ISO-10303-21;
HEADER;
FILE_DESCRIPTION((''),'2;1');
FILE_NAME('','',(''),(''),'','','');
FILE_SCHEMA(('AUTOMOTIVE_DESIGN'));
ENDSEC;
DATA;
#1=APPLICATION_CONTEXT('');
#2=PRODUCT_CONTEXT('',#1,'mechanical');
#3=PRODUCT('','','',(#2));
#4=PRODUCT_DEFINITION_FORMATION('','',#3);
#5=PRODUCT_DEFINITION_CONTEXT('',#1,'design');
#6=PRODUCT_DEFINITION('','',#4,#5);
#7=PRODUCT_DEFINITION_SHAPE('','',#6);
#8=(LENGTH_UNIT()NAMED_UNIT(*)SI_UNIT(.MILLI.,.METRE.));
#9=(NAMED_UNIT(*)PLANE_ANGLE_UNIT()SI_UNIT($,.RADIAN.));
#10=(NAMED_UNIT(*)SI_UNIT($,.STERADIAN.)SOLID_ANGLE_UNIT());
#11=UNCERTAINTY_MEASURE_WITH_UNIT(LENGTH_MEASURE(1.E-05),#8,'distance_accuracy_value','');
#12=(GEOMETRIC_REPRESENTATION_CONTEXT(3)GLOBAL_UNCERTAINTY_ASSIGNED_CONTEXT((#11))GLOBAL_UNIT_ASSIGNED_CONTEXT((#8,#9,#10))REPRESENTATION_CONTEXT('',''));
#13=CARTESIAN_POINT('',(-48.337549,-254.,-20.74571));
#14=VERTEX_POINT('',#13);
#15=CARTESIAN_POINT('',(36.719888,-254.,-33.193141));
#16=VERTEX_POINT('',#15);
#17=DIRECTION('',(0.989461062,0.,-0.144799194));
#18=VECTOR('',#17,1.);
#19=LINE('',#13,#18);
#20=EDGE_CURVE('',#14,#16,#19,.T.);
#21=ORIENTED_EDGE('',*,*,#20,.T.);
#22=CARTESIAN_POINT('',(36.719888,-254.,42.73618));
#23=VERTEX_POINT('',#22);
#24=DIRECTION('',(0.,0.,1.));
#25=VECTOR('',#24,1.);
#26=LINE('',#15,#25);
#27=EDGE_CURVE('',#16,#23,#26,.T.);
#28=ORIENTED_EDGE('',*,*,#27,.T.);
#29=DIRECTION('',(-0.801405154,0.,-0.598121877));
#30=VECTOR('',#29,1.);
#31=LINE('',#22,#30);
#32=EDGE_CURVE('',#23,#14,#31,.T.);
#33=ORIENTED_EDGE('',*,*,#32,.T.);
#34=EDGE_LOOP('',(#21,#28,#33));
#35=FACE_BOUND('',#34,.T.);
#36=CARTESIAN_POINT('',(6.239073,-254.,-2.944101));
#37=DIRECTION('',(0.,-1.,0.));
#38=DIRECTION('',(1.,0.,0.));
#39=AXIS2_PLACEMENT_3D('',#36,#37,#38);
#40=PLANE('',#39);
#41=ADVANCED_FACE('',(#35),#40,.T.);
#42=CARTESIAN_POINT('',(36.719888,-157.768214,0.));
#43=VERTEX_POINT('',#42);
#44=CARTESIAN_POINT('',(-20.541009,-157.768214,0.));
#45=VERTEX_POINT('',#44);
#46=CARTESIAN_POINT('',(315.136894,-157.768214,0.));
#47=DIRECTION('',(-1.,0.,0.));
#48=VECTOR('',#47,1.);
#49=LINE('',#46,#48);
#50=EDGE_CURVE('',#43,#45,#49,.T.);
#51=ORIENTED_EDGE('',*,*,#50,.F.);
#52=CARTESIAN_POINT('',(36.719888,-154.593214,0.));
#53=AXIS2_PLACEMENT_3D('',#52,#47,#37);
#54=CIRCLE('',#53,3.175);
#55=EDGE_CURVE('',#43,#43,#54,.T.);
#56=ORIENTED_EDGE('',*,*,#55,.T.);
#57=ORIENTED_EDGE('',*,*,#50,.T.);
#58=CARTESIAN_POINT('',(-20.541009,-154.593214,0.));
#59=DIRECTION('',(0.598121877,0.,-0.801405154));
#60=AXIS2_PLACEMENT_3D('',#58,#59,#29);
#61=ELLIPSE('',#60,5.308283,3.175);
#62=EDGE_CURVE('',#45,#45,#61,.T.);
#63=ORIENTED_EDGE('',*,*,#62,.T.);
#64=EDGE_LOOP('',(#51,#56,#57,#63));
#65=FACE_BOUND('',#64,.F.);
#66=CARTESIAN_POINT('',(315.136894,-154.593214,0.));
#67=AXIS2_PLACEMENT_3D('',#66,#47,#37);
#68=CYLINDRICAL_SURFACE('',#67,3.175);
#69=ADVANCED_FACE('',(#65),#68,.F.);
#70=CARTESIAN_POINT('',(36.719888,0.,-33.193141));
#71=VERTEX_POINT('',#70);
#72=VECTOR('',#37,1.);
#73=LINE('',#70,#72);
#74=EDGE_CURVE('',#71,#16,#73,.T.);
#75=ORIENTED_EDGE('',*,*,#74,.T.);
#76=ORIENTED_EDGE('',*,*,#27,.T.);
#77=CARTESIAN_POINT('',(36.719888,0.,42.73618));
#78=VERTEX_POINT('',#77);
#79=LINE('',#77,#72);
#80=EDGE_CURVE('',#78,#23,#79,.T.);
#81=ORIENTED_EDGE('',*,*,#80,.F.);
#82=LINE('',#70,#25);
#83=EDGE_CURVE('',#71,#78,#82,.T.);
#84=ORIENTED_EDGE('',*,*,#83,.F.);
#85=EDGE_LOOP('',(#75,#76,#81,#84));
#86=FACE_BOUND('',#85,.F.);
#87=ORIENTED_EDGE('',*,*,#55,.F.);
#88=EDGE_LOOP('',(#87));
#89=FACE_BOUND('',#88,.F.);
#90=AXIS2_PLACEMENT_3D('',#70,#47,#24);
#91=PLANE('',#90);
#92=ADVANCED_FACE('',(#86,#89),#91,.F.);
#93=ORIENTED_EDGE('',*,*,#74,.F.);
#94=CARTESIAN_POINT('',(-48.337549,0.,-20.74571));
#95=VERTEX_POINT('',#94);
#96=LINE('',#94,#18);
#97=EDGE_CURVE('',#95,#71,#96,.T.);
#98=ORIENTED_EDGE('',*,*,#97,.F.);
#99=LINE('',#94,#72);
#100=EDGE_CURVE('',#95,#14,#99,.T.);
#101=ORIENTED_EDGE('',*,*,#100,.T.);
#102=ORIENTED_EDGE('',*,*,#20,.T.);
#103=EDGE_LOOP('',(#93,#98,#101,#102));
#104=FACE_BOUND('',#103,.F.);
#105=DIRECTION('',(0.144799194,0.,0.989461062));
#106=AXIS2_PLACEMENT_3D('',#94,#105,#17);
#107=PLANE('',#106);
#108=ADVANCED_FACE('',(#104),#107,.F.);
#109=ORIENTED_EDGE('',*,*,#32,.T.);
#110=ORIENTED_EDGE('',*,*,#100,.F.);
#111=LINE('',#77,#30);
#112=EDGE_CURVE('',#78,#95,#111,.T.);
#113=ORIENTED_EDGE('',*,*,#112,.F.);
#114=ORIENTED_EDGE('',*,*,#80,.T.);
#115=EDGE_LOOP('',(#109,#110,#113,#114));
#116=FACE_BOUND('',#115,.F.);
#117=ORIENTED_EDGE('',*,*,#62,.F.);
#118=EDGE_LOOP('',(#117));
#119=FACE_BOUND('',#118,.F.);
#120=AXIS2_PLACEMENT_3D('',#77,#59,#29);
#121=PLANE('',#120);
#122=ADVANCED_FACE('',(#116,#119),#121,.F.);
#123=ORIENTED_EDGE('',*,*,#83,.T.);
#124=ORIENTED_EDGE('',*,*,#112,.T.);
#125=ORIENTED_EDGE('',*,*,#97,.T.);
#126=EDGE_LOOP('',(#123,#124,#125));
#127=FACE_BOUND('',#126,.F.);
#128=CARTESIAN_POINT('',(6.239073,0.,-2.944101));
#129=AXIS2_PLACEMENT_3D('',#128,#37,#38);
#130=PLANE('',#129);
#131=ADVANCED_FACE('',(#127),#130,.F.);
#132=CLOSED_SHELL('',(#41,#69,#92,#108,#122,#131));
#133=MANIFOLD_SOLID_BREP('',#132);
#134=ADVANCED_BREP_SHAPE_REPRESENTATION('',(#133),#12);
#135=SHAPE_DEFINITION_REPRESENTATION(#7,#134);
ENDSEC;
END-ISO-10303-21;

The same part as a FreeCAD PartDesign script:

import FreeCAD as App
import Part
import Sketcher
from FreeCAD import Vector
Q = App.Units.Quantity

doc = App.newDocument("Part")
body = doc.addObject("PartDesign::Body", "Body")

# Sketch on XZ plane
sketch1 = body.newObject("Sketcher::SketchObject", "Sketch")
sketch1.AttachmentSupport = (doc.getObject("XZ_Plane"), [""])
sketch1.MapMode = "FlatFace"
sketch1.addGeometry([
    Part.LineSegment(Vector(37, 43, 0), Vector(-48, -21, 0)),
    Part.LineSegment(Vector(-48, -21, 0), Vector(37, -33, 0)),
    Part.LineSegment(Vector(37, -33, 0), Vector(37, 43, 0)),
], False)
sketch1.addConstraint([
    Sketcher.Constraint("Coincident", 0, 2, 1, 1),
    Sketcher.Constraint("Coincident", 1, 2, 2, 1),
    Sketcher.Constraint("Coincident", 2, 2, 0, 1),
    Sketcher.Constraint("Vertical", 2),
    Sketcher.Constraint("Distance", 1, 85.9634),
    Sketcher.Constraint("DistanceY", 2, 1, 2, 2, 75.929321),
    Sketcher.Constraint("DistanceX", 0, 2, -1, 1, 48.337549),
    Sketcher.Constraint("DistanceY", 0, 2, -1, 1, 20.74571),
    Sketcher.Constraint("DistanceY", 1, 2, -1, 1, 33.193141),
])
pad1 = body.newObject("PartDesign::Pad", "Pad")
pad1.Profile = sketch1
pad1.Length = Q("10 in")

# Sketch on YZ plane
sketch2 = body.newObject("Sketcher::SketchObject", "Sketch001")
sketch2.AttachmentSupport = (doc.getObject("YZ_Plane"), [""])
sketch2.MapMode = "FlatFace"
sketch2.AttachmentOffset = App.Placement(Vector(0, 0, 36.719888), App.Rotation())
sketch2.addGeometry(Part.Circle(Vector(-154.6, 0, 0), Vector(0, 0, 1), 3.2), False)
sketch2.addConstraint([
    Sketcher.Constraint("PointOnObject", 0, 3, -1),
    Sketcher.Constraint("Diameter", 0, Q("0.25 in")),
    Sketcher.Constraint("DistanceX", 0, 3, -1, 1, 154.593214),
])
doc.recompute()
hole = body.newObject("PartDesign::Hole", "Hole")
hole.Profile = sketch2
hole.ThreadType = "None"
hole.Diameter = Q("0.25 in")
hole.DepthType = "ThroughAll"

doc.recompute()
